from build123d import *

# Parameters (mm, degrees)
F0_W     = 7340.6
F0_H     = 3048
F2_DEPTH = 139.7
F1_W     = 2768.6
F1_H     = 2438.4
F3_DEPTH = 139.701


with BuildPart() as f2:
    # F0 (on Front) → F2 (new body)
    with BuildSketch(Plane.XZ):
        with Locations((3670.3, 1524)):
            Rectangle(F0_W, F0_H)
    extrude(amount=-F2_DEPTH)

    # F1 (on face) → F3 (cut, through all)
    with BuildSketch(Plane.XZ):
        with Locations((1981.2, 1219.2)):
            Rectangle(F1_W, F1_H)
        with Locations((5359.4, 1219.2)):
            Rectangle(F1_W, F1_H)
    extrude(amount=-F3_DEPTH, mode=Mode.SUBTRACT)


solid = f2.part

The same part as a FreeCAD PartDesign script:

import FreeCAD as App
import Part
import Sketcher

V = App.Vector
Q = App.Units.Quantity


def add_polygon(sketch, points):
    """Adds a closed chain of lines whose ends are joined by coincident constraints."""
    first, n = sketch.GeometryCount, len(points)
    for a, b in zip(points, points[1:] + points[:1]):
        sketch.addGeometry(Part.LineSegment(App.Vector(*a, 0), App.Vector(*b, 0)), False)
    for i in range(n):
        sketch.addConstraint(Sketcher.Constraint("Coincident", first + i, 2, first + (i + 1) % n, 1))

doc = App.newDocument("Part")
body = doc.addObject("PartDesign::Body", "Body")

# Sketch on XZ plane
sketch1 = doc.addObject("Sketcher::SketchObject", "Sketch")
body.addObject(sketch1)
sketch1.AttachmentSupport = (doc.XZ_Plane, [""])
sketch1.MapMode = "FlatFace"
add_polygon(sketch1, [(0, 3048), (0, 0), (7340.6, 0), (7340.6, 3048)])  # lines 0-3
sketch1.addConstraint([
    Sketcher.Constraint("Vertical", 0),
    Sketcher.Constraint("Horizontal", 1),
    Sketcher.Constraint("Vertical", 2),
    Sketcher.Constraint("Horizontal", 3),
    Sketcher.Constraint("Coincident", 0, 2, -1, 1),
    Sketcher.Constraint("DistanceX", 1, 1, 1, 2, Q("289 in")),
    Sketcher.Constraint("DistanceY", 0, 2, 0, 1, Q("120 in")),
])
pad1 = doc.addObject("PartDesign::Pad", "Pad")
body.addObject(pad1)
pad1.Profile = sketch1
pad1.Length = Q("5.5 in")
pad1.Reversed = True

# Sketch on XZ plane
sketch2 = doc.addObject("Sketcher::SketchObject", "Sketch001")
body.addObject(sketch2)
sketch2.AttachmentSupport = (doc.XZ_Plane, [""])
sketch2.MapMode = "FlatFace"
add_polygon(sketch2, [(596.9, 2438.4), (596.9, 0), (3365.5, 0), (3365.5, 2438.4)])  # lines 0-3
add_polygon(sketch2, [(3975.1, 2438.4), (3975.1, 0), (6743.7, 0), (6743.7, 2438.4)])  # lines 4-7
sketch2.addConstraint([
    Sketcher.Constraint("Vertical", 0),
    Sketcher.Constraint("Horizontal", 1),
    Sketcher.Constraint("Vertical", 2),
    Sketcher.Constraint("Horizontal", 3),
    Sketcher.Constraint("Vertical", 4),
    Sketcher.Constraint("Horizontal", 5),
    Sketcher.Constraint("Vertical", 6),
    Sketcher.Constraint("Horizontal", 7),
    Sketcher.Constraint("PointOnObject", 0, 2, -1),
    Sketcher.Constraint("PointOnObject", 4, 2, -1),
    Sketcher.Constraint("Horizontal", 3, 2, 6, 2),
    Sketcher.Constraint("Equal", 3, 5),
    Sketcher.Constraint("DistanceX", 1, 1, 1, 2, Q("109 in")),
    Sketcher.Constraint("DistanceY", 0, 2, 0, 1, Q("96 in")),
    Sketcher.Constraint("DistanceX", 1, 2, 4, 2, Q("24 in")),
    Sketcher.Constraint("DistanceX", -1, 1, 0, 2, Q("23.5 in")),
])
pocket1 = doc.addObject("PartDesign::Pocket", "Pocket")
body.addObject(pocket1)
pocket1.Profile = sketch2
pocket1.Type = "ThroughAll"

doc.recompute()
